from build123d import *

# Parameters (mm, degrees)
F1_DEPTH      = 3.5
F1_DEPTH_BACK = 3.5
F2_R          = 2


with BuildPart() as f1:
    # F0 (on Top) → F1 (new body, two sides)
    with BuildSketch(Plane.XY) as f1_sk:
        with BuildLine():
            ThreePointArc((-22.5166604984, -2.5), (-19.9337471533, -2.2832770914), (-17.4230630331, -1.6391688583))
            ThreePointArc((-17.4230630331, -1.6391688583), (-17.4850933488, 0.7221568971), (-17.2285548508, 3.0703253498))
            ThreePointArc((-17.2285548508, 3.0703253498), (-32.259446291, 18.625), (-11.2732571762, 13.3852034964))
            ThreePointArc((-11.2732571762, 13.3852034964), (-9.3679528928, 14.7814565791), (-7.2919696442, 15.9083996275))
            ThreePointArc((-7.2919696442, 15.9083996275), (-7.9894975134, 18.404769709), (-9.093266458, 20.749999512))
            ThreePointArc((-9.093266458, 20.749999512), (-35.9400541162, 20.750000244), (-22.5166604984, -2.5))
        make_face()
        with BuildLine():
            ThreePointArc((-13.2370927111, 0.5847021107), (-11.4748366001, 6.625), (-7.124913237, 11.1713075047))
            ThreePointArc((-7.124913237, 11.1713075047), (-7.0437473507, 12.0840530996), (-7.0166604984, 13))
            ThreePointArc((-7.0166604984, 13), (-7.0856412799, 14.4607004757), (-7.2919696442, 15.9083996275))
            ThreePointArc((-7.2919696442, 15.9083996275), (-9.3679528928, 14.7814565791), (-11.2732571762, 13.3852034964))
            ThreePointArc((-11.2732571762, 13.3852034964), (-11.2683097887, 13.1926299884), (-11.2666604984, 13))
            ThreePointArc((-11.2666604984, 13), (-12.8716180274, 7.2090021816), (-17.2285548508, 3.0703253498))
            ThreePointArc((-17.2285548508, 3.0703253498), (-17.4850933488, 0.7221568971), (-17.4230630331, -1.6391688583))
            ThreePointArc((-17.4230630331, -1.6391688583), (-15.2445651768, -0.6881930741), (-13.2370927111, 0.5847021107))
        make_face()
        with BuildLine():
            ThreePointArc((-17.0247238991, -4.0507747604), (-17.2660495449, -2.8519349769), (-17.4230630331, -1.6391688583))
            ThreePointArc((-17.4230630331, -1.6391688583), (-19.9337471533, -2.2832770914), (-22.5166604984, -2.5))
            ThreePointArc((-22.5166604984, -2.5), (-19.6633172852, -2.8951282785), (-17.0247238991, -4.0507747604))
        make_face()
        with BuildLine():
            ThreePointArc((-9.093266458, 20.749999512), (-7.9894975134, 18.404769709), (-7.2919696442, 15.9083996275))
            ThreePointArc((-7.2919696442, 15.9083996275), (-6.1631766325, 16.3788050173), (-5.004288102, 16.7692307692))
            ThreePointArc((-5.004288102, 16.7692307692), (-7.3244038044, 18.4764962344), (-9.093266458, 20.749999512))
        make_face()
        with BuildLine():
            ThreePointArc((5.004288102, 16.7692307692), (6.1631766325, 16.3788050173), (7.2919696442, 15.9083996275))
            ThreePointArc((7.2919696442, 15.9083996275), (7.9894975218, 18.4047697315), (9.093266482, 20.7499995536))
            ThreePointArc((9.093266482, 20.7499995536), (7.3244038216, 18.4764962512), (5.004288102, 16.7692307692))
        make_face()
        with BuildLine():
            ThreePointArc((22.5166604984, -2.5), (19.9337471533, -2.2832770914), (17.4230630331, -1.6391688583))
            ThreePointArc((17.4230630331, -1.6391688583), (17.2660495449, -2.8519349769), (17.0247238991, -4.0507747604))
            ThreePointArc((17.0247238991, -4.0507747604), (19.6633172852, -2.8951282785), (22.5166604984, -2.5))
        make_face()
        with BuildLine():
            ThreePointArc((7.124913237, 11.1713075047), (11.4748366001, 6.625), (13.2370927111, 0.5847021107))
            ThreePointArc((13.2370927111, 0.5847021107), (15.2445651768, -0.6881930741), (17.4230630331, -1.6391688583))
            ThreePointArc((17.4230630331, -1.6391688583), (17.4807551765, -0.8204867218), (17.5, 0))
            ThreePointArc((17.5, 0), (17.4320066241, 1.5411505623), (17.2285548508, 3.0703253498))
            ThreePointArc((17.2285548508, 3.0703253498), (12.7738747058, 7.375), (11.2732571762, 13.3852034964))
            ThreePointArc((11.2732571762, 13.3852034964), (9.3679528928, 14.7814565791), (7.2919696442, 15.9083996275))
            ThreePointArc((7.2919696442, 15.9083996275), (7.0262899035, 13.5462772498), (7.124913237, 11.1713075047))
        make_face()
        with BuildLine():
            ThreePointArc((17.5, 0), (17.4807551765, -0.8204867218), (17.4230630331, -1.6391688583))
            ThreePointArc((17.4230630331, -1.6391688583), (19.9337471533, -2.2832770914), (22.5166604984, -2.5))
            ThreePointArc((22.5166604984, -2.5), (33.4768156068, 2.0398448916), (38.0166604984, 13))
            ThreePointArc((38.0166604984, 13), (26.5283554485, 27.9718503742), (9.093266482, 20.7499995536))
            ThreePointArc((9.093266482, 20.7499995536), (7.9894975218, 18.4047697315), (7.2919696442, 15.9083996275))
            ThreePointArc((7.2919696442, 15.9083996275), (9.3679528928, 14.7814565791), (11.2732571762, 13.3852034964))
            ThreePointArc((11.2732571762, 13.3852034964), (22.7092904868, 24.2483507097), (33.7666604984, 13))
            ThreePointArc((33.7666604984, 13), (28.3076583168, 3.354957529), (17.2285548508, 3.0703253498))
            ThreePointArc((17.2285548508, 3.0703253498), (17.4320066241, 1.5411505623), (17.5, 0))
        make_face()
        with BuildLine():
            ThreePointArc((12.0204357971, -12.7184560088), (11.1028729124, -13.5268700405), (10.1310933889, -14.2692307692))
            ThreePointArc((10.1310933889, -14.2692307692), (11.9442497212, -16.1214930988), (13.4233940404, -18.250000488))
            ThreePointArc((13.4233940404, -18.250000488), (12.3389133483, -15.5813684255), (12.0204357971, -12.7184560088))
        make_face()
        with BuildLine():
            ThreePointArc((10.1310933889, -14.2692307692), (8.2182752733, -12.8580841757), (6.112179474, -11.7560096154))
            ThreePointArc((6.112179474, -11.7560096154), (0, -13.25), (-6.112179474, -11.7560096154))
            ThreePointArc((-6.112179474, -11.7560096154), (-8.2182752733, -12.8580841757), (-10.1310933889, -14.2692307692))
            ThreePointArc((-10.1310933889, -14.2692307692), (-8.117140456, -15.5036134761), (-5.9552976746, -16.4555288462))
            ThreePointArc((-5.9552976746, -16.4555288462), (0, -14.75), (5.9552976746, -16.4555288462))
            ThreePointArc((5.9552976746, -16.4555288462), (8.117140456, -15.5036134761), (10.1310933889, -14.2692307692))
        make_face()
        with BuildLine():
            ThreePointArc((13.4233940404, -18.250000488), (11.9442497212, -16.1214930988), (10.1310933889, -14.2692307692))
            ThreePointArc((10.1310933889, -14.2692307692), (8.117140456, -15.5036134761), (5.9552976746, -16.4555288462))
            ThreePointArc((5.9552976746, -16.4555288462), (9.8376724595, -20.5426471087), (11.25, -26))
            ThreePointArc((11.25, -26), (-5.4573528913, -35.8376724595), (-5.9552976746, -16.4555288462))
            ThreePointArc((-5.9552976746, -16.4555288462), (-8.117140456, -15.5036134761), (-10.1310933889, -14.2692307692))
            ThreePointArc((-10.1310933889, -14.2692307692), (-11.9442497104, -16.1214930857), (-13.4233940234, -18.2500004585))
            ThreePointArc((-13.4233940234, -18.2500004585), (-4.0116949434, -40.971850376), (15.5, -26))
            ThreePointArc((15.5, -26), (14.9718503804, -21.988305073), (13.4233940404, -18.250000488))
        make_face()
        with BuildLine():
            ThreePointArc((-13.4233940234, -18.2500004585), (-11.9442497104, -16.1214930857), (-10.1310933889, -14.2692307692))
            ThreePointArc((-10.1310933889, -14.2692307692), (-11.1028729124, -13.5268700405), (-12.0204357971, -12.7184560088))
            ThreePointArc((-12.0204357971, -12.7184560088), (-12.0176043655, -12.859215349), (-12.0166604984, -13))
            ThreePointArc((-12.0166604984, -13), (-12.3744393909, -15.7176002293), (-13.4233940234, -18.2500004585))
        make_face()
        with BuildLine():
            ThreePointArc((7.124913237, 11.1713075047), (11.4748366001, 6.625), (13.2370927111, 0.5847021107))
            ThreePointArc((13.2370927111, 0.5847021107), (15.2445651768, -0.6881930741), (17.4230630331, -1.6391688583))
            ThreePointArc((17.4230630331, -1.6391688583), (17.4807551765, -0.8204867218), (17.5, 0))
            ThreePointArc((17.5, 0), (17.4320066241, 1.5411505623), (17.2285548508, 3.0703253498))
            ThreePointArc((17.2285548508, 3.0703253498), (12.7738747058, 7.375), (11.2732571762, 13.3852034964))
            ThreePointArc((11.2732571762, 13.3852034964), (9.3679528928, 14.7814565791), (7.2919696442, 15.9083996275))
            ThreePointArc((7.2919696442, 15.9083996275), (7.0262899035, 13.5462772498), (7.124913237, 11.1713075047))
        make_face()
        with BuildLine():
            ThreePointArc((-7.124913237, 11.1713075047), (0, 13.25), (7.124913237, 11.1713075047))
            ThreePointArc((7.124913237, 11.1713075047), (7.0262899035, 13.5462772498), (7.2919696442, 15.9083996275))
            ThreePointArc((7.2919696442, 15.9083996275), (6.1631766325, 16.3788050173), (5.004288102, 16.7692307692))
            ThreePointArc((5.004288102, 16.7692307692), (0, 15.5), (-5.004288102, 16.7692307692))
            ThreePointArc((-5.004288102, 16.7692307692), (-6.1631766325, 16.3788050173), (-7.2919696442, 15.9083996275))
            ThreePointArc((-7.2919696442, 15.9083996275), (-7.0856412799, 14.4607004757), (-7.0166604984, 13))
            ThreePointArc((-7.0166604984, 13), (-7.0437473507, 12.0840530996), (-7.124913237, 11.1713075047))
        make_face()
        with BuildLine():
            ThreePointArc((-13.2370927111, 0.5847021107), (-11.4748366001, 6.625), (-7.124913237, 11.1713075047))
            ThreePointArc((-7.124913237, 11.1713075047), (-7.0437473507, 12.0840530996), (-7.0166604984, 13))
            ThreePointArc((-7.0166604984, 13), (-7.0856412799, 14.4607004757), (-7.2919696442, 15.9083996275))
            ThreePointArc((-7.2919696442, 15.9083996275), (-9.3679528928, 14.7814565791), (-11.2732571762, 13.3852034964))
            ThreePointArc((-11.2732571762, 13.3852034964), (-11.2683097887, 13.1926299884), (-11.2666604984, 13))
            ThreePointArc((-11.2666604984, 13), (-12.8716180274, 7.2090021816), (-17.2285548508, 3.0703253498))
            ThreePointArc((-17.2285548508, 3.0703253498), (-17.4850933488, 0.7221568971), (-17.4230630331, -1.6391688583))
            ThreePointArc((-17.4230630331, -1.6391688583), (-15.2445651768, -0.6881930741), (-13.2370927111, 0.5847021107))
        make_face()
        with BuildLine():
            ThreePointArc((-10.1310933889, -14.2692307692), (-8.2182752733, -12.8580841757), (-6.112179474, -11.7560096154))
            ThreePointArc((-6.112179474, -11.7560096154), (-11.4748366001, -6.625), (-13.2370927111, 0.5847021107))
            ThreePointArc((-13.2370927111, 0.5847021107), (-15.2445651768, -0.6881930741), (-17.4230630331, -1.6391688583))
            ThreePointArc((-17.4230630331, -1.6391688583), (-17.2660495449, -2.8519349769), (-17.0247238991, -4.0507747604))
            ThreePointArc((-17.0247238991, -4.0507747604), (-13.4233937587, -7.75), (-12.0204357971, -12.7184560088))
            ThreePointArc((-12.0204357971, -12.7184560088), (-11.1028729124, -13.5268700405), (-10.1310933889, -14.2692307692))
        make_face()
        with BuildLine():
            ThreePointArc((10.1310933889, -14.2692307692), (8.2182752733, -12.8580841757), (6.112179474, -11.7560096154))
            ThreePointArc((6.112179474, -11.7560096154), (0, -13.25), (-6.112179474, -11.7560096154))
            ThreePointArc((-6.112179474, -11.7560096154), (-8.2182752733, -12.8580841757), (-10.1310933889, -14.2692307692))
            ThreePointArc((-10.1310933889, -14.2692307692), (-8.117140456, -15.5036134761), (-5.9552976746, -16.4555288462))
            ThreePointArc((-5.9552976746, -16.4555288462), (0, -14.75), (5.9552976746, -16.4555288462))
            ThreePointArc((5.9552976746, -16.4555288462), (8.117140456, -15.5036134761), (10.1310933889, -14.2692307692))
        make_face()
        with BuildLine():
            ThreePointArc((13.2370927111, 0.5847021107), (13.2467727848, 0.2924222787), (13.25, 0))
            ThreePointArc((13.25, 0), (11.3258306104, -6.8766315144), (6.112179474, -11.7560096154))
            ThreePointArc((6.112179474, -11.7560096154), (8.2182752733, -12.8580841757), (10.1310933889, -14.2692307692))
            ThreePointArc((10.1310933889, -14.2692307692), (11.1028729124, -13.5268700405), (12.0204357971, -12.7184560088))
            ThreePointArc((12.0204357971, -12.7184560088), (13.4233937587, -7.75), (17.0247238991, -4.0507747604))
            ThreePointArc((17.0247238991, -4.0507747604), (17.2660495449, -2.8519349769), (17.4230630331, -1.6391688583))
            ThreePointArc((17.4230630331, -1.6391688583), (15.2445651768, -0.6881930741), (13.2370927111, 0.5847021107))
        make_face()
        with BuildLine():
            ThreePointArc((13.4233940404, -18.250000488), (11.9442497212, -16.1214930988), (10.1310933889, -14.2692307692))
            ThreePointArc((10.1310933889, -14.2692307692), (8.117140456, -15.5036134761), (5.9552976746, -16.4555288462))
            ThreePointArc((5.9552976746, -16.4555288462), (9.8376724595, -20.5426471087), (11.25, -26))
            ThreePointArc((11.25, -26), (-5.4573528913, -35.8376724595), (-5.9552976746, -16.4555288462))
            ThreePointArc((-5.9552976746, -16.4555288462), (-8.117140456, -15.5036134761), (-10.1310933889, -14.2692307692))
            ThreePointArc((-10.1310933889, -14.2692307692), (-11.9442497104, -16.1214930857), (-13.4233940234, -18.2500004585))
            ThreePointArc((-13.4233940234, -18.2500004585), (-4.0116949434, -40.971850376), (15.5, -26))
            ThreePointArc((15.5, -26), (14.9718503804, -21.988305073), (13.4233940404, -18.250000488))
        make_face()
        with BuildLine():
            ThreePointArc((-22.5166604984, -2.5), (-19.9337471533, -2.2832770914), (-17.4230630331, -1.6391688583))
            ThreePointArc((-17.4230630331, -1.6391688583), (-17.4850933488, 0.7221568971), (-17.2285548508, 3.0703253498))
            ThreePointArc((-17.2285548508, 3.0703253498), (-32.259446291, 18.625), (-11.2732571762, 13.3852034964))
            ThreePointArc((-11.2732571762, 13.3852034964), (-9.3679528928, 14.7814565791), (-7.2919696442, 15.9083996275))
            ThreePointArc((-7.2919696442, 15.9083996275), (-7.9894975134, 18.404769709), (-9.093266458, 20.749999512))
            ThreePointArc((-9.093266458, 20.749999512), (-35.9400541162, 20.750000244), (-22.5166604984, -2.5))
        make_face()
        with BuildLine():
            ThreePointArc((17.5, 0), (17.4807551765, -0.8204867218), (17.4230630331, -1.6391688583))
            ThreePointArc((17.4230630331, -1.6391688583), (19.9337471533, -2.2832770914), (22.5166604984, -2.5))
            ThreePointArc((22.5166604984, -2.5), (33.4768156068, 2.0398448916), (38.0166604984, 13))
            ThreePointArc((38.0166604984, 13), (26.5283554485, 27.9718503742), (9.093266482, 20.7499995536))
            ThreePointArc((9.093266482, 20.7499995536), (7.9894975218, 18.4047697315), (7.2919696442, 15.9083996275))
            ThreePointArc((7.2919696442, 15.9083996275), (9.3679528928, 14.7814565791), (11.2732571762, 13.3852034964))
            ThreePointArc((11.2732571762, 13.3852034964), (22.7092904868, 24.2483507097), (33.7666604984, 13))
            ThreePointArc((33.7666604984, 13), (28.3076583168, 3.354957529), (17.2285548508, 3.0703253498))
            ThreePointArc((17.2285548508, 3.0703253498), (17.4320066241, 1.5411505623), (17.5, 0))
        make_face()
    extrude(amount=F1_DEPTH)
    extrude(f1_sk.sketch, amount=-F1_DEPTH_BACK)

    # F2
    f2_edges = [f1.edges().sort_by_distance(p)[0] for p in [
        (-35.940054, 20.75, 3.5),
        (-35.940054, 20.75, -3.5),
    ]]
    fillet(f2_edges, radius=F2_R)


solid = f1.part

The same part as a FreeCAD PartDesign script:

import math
import FreeCAD as App
import Part
import Sketcher
Q = App.Units.Quantity


def edges_at(feature, points):
    """Names of the edges that pass closest to the given points."""
    edges = feature.Shape.Edges
    near = lambda p: min(range(len(edges)), key=lambda i: edges[i].distToShape(Part.Vertex(*p))[0])
    return sorted({f"Edge{near(p) + 1}" for p in points})

doc = App.newDocument("Part")
body = doc.addObject("PartDesign::Body", "Body")

sketch1 = body.newObject("Sketcher::SketchObject", "Sketch")
sketch1.AttachmentSupport = (doc.getObject("XY_Plane"), [""])
sketch1.MapMode = "FlatFace"
sketch1.addGeometry(Part.ArcOfCircle(Part.Circle(App.Vector(0, -26, 0), App.Vector(0, 0, 1), 15.5), math.radians(0), math.radians(29.999998)), False)
sketch1.addGeometry(Part.ArcOfCircle(Part.Circle(App.Vector(22.51666, -13, 0), App.Vector(0, 0, 1), 10.5), math.radians(178.463503), math.radians(210.000003)), False)
sketch1.addGeometry(Part.ArcOfCircle(Part.Circle(App.Vector(22.51666, -13, 0), App.Vector(0, 0, 1), 10.5), math.radians(121.536497), math.radians(178.463503)), False)
sketch1.addGeometry(Part.ArcOfCircle(Part.Circle(App.Vector(22.51666, -13, 0), App.Vector(0, 0, 1), 10.5), math.radians(90), math.radians(121.536497)), False)
sketch1.addGeometry(Part.ArcOfCircle(Part.Circle(App.Vector(22.51666, 13, 0), App.Vector(0, 0, 1), 15.5), math.radians(-90), math.radians(0)), False)
sketch1.addGeometry(Part.ArcOfCircle(Part.Circle(App.Vector(22.51666, 13, 0), App.Vector(0, 0, 1), 15.5), math.radians(0), math.radians(150.000002)), False)
sketch1.addGeometry(Part.ArcOfCircle(Part.Circle(App.Vector(0, 26, 0), App.Vector(0, 0, 1), 10.5), math.radians(-118.463503), math.radians(-30.000003)), False)
sketch1.addGeometry(Part.ArcOfCircle(Part.Circle(App.Vector(0, 26, 0), App.Vector(0, 0, 1), 10.5), math.radians(-149.999997), math.radians(-118.463503)), False)
sketch1.addGeometry(Part.ArcOfCircle(Part.Circle(App.Vector(-22.51666, 13, 0), App.Vector(0, 0, 1), 15.5), math.radians(29.999998), math.radians(270)), False)
sketch1.addGeometry(Part.ArcOfCircle(Part.Circle(App.Vector(-22.51666, -13, 0), App.Vector(0, 0, 1), 10.5), math.radians(58.463503), math.radians(90)), False)
sketch1.addGeometry(Part.ArcOfCircle(Part.Circle(App.Vector(-22.51666, -13, 0), App.Vector(0, 0, 1), 10.5), math.radians(1.536497), math.radians(58.463503)), False)
sketch1.addGeometry(Part.ArcOfCircle(Part.Circle(App.Vector(-22.51666, -13, 0), App.Vector(0, 0, 1), 10.5), math.radians(0), math.radians(1.536497)), False)
sketch1.addGeometry(Part.ArcOfCircle(Part.Circle(App.Vector(-22.51666, -13, 0), App.Vector(0, 0, 1), 10.5), math.radians(-30.000003), math.radians(0)), False)
sketch1.addGeometry(Part.ArcOfCircle(Part.Circle(App.Vector(0, -26, 0), App.Vector(0, 0, 1), 15.5), math.radians(150.000002), math.radians(360)), False)
sketch1.addGeometry(Part.ArcOfCircle(Part.Circle(App.Vector(22.51666, 13, 0), App.Vector(0, 0, 1), 11.25), math.radians(178.037791), math.radians(241.962209)), False)
sketch1.addGeometry(Part.ArcOfCircle(Part.Circle(App.Vector(22.51666, 13, 0), App.Vector(0, 0, 1), 11.25), math.radians(0), math.radians(178.037791)), False)
sketch1.addGeometry(Part.ArcOfCircle(Part.Circle(App.Vector(22.51666, 13, 0), App.Vector(0, 0, 1), 11.25), math.radians(-118.037791), math.radians(0)), False)
sketch1.addGeometry(Part.ArcOfCircle(Part.Circle(App.Vector(0, -26, 0), App.Vector(0, 0, 1), 11.25), math.radians(58.037791), math.radians(121.962209)), False)
sketch1.addGeometry(Part.ArcOfCircle(Part.Circle(App.Vector(0, -26, 0), App.Vector(0, 0, 1), 11.25), math.radians(0), math.radians(58.037791)), False)
sketch1.addGeometry(Part.ArcOfCircle(Part.Circle(App.Vector(0, -26, 0), App.Vector(0, 0, 1), 11.25), math.radians(121.962209), math.radians(360)), False)
sketch1.addGeometry(Part.ArcOfCircle(Part.Circle(App.Vector(-22.51666, 13, 0), App.Vector(0, 0, 1), 11.25), math.radians(-61.962209), math.radians(0)), False)
sketch1.addGeometry(Part.ArcOfCircle(Part.Circle(App.Vector(-22.51666, 13, 0), App.Vector(0, 0, 1), 11.25), math.radians(1.962209), math.radians(298.037791)), False)
sketch1.addGeometry(Part.ArcOfCircle(Part.Circle(App.Vector(-22.51666, 13, 0), App.Vector(0, 0, 1), 11.25), math.radians(0), math.radians(1.962209)), False)
sketch1.addGeometry(Part.ArcOfCircle(Part.Circle(App.Vector(0, 0, 0), App.Vector(0, 0, 1), 13.25), math.radians(177.470804), math.radians(242.529196)), False)
sketch1.addGeometry(Part.ArcOfCircle(Part.Circle(App.Vector(0, 0, 0), App.Vector(0, 0, 1), 13.25), math.radians(122.529196), math.radians(177.470804)), False)
sketch1.addGeometry(Part.ArcOfCircle(Part.Circle(App.Vector(0, 0, 0), App.Vector(0, 0, 1), 13.25), math.radians(57.470804), math.radians(122.529196)), False)
sketch1.addGeometry(Part.ArcOfCircle(Part.Circle(App.Vector(0, 0, 0), App.Vector(0, 0, 1), 13.25), math.radians(2.529196), math.radians(57.470804)), False)
sketch1.addGeometry(Part.ArcOfCircle(Part.Circle(App.Vector(0, 0, 0), App.Vector(0, 0, 1), 13.25), math.radians(0), math.radians(2.529196)), False)
sketch1.addGeometry(Part.ArcOfCircle(Part.Circle(App.Vector(0, 0, 0), App.Vector(0, 0, 1), 13.25), math.radians(-62.529196), math.radians(0)), False)
sketch1.addGeometry(Part.ArcOfCircle(Part.Circle(App.Vector(0, 0, 0), App.Vector(0, 0, 1), 13.25), math.radians(-117.470804), math.radians(-62.529196)), False)
sketch1.addConstraint(Sketcher.Constraint("Tangent", 0, 2, 1, 2))
sketch1.addConstraint(Sketcher.Constraint("Tangent", 1, 1, 2, 2))
sketch1.addConstraint(Sketcher.Constraint("Tangent", 2, 1, 3, 2))
sketch1.addConstraint(Sketcher.Constraint("Tangent", 3, 1, 4, 1))
sketch1.addConstraint(Sketcher.Constraint("Tangent", 4, 2, 5, 1))
sketch1.addConstraint(Sketcher.Constraint("Tangent", 5, 2, 6, 2))
sketch1.addConstraint(Sketcher.Constraint("Tangent", 6, 1, 7, 2))
sketch1.addConstraint(Sketcher.Constraint("Tangent", 7, 1, 8, 1))
sketch1.addConstraint(Sketcher.Constraint("Tangent", 8, 2, 9, 2))
sketch1.addConstraint(Sketcher.Constraint("Tangent", 9, 1, 10, 2))
sketch1.addConstraint(Sketcher.Constraint("Tangent", 10, 1, 11, 2))
sketch1.addConstraint(Sketcher.Constraint("Tangent", 11, 1, 12, 2))
sketch1.addConstraint(Sketcher.Constraint("Tangent", 12, 1, 13, 1))
sketch1.addConstraint(Sketcher.Constraint("Tangent", 13, 2, 0, 1))
sketch1.addConstraint(Sketcher.Constraint("Tangent", 14, 1, 15, 2))
sketch1.addConstraint(Sketcher.Constraint("Tangent", 15, 1, 16, 2))
sketch1.addConstraint(Sketcher.Constraint("Tangent", 16, 1, 14, 2))
sketch1.addConstraint(Sketcher.Constraint("Tangent", 17, 1, 18, 2))
sketch1.addConstraint(Sketcher.Constraint("Tangent", 18, 1, 19, 2))
sketch1.addConstraint(Sketcher.Constraint("Tangent", 19, 1, 17, 2))
sketch1.addConstraint(Sketcher.Constraint("Tangent", 20, 1, 21, 2))
sketch1.addConstraint(Sketcher.Constraint("Tangent", 21, 1, 22, 2))
sketch1.addConstraint(Sketcher.Constraint("Coincident", 22, 1, 20, 2))
sketch1.addConstraint(Sketcher.Constraint("Tangent", 23, 1, 24, 2))
sketch1.addConstraint(Sketcher.Constraint("Tangent", 24, 1, 25, 2))
sketch1.addConstraint(Sketcher.Constraint("Tangent", 25, 1, 26, 2))
sketch1.addConstraint(Sketcher.Constraint("Tangent", 26, 1, 27, 2))
sketch1.addConstraint(Sketcher.Constraint("Tangent", 27, 1, 28, 2))
sketch1.addConstraint(Sketcher.Constraint("Tangent", 28, 1, 29, 2))
sketch1.addConstraint(Sketcher.Constraint("Tangent", 29, 1, 23, 2))
sketch1.addConstraint(Sketcher.Constraint("Coincident", 23, 3, -1, 1))
sketch1.addConstraint(Sketcher.Constraint("Coincident", 25, 3, -1, 1))
sketch1.addConstraint(Sketcher.Constraint("Coincident", 27, 3, -1, 1))
sketch1.addConstraint(Sketcher.Constraint("Coincident", 3, 3, 1, 3))
sketch1.addConstraint(Sketcher.Constraint("Coincident", 11, 3, 9, 3))
sketch1.addConstraint(Sketcher.Constraint("Coincident", 14, 3, 4, 3))
sketch1.addConstraint(Sketcher.Constraint("Coincident", 17, 3, 0, 3))
sketch1.addConstraint(Sketcher.Constraint("Coincident", 20, 3, 8, 3))
sketch1.addConstraint(Sketcher.Constraint("Equal", 0, 4))
sketch1.addConstraint(Sketcher.Constraint("Equal", 4, 5))
sketch1.addConstraint(Sketcher.Constraint("Equal", 3, 6))
sketch1.addConstraint(Sketcher.Constraint("Equal", 6, 7))
sketch1.addConstraint(Sketcher.Constraint("Equal", 5, 8))
sketch1.addConstraint(Sketcher.Constraint("Equal", 7, 9))
sketch1.addConstraint(Sketcher.Constraint("Equal", 11, 12))
sketch1.addConstraint(Sketcher.Constraint("Equal", 8, 13))
sketch1.addConstraint(Sketcher.Constraint("Equal", 16, 17))
sketch1.addConstraint(Sketcher.Constraint("Equal", 19, 20))
sketch1.addConstraint(Sketcher.Constraint("Equal", 21, 22))
sketch1.addConstraint(Sketcher.Constraint("Symmetric", 0, 3, 6, 3, -1, 1))
sketch1.addConstraint(Sketcher.Constraint("Symmetric", 4, 3, 8, 3, -2))
sketch1.addConstraint(Sketcher.Constraint("PointOnObject", 27, 1, -1))
sketch1.addConstraint(Sketcher.Constraint("Horizontal", 22, 3, 4, 2))
sketch1.addConstraint(Sketcher.Constraint("Horizontal", 2, 1, 9, 1))
sketch1.addConstraint(Sketcher.Constraint("Horizontal", 1, 1, 10, 1))
sketch1.addConstraint(Sketcher.Constraint("Horizontal", 12, 3, 11, 1))
sketch1.addConstraint(Sketcher.Constraint("Horizontal", 19, 3, 13, 2))
sketch1.addConstraint(Sketcher.Constraint("Horizontal", 4, 2, 15, 1))
sketch1.addConstraint(Sketcher.Constraint("Horizontal", 13, 2, 18, 1))
sketch1.addConstraint(Sketcher.Constraint("Horizontal", 17, 1, 19, 1))
sketch1.addConstraint(Sketcher.Constraint("Horizontal", 16, 1, 20, 1))
sketch1.addConstraint(Sketcher.Constraint("Horizontal", 14, 1, 21, 1))
sketch1.addConstraint(Sketcher.Constraint("Horizontal", 15, 1, 22, 1))
sketch1.addConstraint(Sketcher.Constraint("Horizontal", 24, 1, 25, 1))
sketch1.addConstraint(Sketcher.Constraint("Horizontal", 23, 1, 26, 1))
sketch1.addConstraint(Sketcher.Constraint("Horizontal", 28, 1, 29, 1))
sketch1.addConstraint(Sketcher.Constraint("Vertical", 3, 3, 4, 3))
sketch1.addConstraint(Sketcher.Constraint("Radius", 0, Q("15.5 mm")))
sketch1.addConstraint(Sketcher.Constraint("Radius", 1, Q("10.5 mm")))
sketch1.addConstraint(Sketcher.Constraint("Radius", 14, Q("11.25 mm")))
sketch1.addConstraint(Sketcher.Constraint("Radius", 23, Q("13.25 mm")))
sketch1.addConstraint(Sketcher.Constraint("DistanceY", 0, 3, -1, 1, Q("26 mm")))
sketch1.addConstraint(Sketcher.Constraint("DistanceY", 2, 1, 16, 1, Q("7.1211 mm")))
sketch1.addConstraint(Sketcher.Constraint("DistanceY", 23, 1, 21, 1, Q("12.800501 mm")))
sketch1.addConstraint(Sketcher.Constraint("DistanceX", 6, 1, -1, 1, Q("5.004288 mm")))
sketch1.addConstraint(Sketcher.Constraint("DistanceY", 17, 1, -1, 1, Q("16.455529 mm")))
sketch1.addConstraint(Sketcher.Constraint("DistanceX", -1, 1, 28, 1, Q("6.112179 mm")))
sketch1.addConstraint(Sketcher.Constraint("DistanceX", 1, 1, 0, 2, Q("1.402958 mm")))
sketch1.addConstraint(Sketcher.Constraint("DistanceX", 1, 1, 2, 1, Q("5.004288 mm")))
sketch1.addConstraint(Sketcher.Constraint("DistanceX", 5, 2, 14, 1, Q("2.179991 mm")))
sketch1.addConstraint(Sketcher.Constraint("DistanceX", 23, 1, 24, 1, Q("6.112179 mm")))
pad1 = body.newObject("PartDesign::Pad", "Pad")
pad1.Profile = sketch1
pad1.Type = "TwoLengths"
pad1.Length = 3.5
pad1.Length2 = 3.5
doc.recompute()

fillet = body.newObject("PartDesign::Fillet", "Fillet")
fillet.Base = (pad1, edges_at(pad1, [(-35.94, 20.75, 3.5), (-35.94, 20.75, -3.5)]))
fillet.Radius = 2

doc.recompute()
